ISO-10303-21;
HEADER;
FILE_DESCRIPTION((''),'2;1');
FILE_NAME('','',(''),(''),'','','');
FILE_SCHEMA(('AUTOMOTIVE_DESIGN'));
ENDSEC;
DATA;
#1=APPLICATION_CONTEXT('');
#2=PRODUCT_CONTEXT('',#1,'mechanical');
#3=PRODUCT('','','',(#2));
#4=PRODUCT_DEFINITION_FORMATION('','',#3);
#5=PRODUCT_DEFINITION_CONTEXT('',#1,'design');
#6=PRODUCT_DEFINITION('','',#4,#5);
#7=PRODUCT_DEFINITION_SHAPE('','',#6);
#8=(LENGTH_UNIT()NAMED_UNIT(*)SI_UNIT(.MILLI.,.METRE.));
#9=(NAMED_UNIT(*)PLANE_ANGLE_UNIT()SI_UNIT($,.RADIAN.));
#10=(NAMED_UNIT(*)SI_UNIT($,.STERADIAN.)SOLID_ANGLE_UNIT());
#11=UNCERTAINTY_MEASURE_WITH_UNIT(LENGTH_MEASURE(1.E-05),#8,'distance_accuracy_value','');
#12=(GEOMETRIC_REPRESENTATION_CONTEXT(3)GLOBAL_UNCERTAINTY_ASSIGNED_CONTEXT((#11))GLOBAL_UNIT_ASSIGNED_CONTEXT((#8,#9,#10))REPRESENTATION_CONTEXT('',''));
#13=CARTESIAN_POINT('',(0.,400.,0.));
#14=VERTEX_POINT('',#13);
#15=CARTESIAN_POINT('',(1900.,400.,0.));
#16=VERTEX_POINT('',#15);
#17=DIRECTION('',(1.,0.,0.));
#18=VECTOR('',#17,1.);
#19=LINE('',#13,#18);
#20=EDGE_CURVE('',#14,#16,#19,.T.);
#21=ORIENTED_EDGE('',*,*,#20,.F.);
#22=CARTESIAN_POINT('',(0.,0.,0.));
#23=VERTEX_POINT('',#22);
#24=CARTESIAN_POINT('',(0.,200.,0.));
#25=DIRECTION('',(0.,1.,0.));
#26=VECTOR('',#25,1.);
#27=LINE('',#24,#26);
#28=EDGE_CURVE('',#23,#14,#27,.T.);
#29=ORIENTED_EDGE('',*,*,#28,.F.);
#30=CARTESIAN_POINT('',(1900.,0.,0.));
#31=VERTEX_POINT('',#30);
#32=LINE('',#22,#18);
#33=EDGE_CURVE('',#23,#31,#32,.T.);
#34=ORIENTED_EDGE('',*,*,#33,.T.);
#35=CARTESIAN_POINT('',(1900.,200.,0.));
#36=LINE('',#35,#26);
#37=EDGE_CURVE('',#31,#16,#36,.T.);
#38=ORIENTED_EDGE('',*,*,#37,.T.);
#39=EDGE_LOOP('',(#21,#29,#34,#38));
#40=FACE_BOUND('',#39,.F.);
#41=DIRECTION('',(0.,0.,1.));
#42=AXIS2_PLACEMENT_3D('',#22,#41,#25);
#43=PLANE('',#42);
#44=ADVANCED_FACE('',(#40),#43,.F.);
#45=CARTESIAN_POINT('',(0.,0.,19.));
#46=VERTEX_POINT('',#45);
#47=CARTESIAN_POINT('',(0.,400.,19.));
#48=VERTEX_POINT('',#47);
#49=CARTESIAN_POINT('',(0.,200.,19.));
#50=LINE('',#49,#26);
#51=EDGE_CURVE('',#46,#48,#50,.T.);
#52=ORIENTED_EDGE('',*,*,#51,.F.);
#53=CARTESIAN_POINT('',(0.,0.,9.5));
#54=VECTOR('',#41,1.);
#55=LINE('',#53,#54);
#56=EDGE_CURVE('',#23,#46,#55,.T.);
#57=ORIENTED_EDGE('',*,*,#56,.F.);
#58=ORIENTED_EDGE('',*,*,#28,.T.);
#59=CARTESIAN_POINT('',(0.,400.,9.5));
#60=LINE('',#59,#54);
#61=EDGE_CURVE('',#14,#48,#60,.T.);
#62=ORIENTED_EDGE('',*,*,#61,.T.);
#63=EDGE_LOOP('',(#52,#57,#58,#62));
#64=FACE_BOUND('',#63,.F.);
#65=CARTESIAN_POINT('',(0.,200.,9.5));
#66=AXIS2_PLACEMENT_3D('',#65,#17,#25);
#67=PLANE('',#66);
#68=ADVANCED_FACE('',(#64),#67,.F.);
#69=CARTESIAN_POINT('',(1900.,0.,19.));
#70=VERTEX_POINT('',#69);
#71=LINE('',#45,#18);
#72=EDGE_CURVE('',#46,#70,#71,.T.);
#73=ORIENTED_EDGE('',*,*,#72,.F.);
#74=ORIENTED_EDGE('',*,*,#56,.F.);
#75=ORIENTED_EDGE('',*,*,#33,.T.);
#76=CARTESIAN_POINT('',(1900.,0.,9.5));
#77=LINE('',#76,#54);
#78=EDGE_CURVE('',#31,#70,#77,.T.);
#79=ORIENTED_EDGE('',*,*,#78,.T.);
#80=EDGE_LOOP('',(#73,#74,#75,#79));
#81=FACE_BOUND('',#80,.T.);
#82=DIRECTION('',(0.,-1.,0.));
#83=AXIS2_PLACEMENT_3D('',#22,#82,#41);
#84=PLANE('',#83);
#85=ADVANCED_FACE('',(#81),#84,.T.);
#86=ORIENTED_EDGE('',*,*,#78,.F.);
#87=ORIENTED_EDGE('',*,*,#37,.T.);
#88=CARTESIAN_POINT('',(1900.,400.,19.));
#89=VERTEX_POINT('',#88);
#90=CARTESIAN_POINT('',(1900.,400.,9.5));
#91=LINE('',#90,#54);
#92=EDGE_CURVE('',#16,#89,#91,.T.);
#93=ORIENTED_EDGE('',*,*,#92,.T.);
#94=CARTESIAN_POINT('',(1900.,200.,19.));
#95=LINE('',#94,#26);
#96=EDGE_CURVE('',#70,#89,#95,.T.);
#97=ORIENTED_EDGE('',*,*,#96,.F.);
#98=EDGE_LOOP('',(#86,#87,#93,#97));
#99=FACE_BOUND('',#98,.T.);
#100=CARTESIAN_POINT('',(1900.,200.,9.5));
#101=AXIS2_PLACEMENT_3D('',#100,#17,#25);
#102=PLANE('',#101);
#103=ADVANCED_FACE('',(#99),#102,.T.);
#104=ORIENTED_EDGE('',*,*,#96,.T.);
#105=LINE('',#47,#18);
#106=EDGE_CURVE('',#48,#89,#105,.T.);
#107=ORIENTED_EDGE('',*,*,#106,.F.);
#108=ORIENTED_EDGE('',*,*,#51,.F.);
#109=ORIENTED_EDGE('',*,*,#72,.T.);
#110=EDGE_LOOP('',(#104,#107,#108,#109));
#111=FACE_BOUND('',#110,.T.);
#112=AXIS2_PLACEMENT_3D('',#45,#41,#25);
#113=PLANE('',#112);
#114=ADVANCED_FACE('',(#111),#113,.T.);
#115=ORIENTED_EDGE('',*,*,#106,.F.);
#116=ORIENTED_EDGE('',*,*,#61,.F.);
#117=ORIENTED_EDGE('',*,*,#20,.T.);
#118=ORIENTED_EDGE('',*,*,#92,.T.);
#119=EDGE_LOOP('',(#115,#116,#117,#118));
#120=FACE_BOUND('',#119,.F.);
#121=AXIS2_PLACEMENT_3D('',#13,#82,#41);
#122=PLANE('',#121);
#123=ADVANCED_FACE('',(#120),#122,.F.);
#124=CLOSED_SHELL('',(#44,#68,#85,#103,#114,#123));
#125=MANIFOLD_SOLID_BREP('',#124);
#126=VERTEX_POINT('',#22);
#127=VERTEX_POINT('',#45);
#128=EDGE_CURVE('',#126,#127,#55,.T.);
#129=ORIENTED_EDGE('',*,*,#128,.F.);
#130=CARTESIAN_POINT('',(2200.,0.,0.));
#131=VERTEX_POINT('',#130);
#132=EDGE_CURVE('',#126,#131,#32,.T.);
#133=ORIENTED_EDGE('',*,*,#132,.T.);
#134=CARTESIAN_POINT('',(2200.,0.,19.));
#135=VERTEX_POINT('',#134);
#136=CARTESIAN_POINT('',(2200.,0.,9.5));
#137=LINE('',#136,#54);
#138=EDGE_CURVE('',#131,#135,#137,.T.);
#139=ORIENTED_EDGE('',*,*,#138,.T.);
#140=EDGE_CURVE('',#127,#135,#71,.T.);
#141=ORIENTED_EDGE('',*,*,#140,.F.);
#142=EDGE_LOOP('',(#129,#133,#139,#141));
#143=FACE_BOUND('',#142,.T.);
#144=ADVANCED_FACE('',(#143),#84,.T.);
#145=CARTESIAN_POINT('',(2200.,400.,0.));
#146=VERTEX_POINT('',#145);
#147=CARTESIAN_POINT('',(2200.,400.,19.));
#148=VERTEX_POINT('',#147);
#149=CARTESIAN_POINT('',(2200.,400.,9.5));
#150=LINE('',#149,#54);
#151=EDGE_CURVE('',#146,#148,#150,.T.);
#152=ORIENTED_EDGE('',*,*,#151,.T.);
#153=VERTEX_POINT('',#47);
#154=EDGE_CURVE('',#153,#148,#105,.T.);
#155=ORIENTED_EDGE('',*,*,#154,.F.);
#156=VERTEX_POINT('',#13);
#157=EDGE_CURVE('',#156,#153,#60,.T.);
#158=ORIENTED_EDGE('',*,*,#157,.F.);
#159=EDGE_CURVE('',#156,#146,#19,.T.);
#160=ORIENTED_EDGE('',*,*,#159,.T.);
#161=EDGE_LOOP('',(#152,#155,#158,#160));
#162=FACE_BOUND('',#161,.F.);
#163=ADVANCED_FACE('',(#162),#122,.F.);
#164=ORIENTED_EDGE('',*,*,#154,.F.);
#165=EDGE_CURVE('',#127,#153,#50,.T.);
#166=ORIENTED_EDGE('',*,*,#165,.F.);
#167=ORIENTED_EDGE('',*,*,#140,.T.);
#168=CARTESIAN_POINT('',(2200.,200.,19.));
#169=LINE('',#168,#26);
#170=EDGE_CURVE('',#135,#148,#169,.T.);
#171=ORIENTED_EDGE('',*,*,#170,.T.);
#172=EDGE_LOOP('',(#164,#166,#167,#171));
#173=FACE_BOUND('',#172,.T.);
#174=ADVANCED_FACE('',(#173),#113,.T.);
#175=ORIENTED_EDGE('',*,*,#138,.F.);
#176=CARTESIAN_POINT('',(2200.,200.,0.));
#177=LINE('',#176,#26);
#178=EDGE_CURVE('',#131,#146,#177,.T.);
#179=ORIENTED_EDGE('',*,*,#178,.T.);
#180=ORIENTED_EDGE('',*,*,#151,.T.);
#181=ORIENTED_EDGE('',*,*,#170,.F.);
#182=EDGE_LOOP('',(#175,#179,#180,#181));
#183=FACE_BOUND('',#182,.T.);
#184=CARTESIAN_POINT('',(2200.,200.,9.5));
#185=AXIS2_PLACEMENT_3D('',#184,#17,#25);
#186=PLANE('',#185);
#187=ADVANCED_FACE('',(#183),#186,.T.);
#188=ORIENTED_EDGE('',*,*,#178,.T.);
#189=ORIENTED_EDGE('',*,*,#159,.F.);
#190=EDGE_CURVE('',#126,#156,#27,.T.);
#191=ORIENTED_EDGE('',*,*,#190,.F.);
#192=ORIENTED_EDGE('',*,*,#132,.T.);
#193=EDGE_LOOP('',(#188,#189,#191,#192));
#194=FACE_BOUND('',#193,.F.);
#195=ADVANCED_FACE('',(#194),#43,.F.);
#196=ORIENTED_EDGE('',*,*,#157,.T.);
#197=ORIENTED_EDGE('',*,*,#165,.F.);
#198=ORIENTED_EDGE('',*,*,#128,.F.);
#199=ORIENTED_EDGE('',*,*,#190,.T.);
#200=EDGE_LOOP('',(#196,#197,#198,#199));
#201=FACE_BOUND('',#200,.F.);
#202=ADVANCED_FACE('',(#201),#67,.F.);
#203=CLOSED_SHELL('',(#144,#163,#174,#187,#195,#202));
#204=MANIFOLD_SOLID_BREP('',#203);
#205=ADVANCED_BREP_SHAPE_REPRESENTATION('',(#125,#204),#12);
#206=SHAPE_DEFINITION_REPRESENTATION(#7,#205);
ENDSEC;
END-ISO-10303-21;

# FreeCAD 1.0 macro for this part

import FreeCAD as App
import Part
import Sketcher


def add_polygon(sketch, points):
    """Adds a closed chain of lines whose ends are joined by coincident constraints."""
    first, n = sketch.GeometryCount, len(points)
    for a, b in zip(points, points[1:] + points[:1]):
        sketch.addGeometry(Part.LineSegment(App.Vector(*a, 0), App.Vector(*b, 0)), False)
    for i in range(n):
        sketch.addConstraint(Sketcher.Constraint("Coincident", first + i, 2, first + (i + 1) % n, 1))

doc = App.newDocument("Part")
params = doc.addObject("Spreadsheet::Sheet", "Params")
for row, (alias, value) in enumerate([
    ("sketch1_width", "400 mm"),
    ("sketch1_height", "19 mm"),
    ("pad1_length", "2200 mm"),
    ("sketch2_width", "400 mm"),
    ("sketch2_height", "19 mm"),
    ("pad2_length", "1900 mm"),
], start=1):
    params.set(f"A{row}", alias)
    params.set(f"B{row}", "=" + value)
    params.setAlias(f"B{row}", alias)

body = doc.addObject("PartDesign::Body", "Body")

sketch1 = body.newObject("Sketcher::SketchObject", "Sketch")
sketch1.AttachmentSupport = (doc.getObject("YZ_Plane"), [""])
sketch1.MapMode = "FlatFace"
add_polygon(sketch1, [(0, 19), (0, 0), (400, 0), (400, 19)])
sketch1.addConstraint([
    Sketcher.Constraint("Vertical", 0),
    Sketcher.Constraint("Horizontal", 1),
    Sketcher.Constraint("Vertical", 2),
    Sketcher.Constraint("Horizontal", 3),
    Sketcher.Constraint("Coincident", 0, 2, -1, 1),
    Sketcher.Constraint("DistanceX", 1, 1, 1, 2, 400.0),
    Sketcher.Constraint("DistanceY", 0, 2, 0, 1, 19.0),
])
sketch1.setExpression("Constraints[9]", "Params.sketch1_width")
sketch1.setExpression("Constraints[10]", "Params.sketch1_height")
pad1 = body.newObject("PartDesign::Pad", "Pad")
pad1.Profile = sketch1
pad1.setExpression("Length", "Params.pad1_length")
body2 = doc.addObject("PartDesign::Body", "Body001")

sketch2 = body2.newObject("Sketcher::SketchObject", "Sketch001")
sketch2.AttachmentSupport = (doc.getObject("YZ_Plane001"), [""])
sketch2.MapMode = "FlatFace"
add_polygon(sketch2, [(0, 19), (0, 0), (400, 0), (400, 19)])
sketch2.addConstraint([
    Sketcher.Constraint("Vertical", 0),
    Sketcher.Constraint("Horizontal", 1),
    Sketcher.Constraint("Vertical", 2),
    Sketcher.Constraint("Horizontal", 3),
    Sketcher.Constraint("Coincident", 0, 2, -1, 1),
    Sketcher.Constraint("DistanceX", 1, 1, 1, 2, 400.0),
    Sketcher.Constraint("DistanceY", 0, 2, 0, 1, 19.0),
])
sketch2.setExpression("Constraints[9]", "Params.sketch2_width")
sketch2.setExpression("Constraints[10]", "Params.sketch2_height")
pad2 = body2.newObject("PartDesign::Pad", "Pad001")
pad2.Profile = sketch2
pad2.setExpression("Length", "Params.pad2_length")

doc.recompute()
